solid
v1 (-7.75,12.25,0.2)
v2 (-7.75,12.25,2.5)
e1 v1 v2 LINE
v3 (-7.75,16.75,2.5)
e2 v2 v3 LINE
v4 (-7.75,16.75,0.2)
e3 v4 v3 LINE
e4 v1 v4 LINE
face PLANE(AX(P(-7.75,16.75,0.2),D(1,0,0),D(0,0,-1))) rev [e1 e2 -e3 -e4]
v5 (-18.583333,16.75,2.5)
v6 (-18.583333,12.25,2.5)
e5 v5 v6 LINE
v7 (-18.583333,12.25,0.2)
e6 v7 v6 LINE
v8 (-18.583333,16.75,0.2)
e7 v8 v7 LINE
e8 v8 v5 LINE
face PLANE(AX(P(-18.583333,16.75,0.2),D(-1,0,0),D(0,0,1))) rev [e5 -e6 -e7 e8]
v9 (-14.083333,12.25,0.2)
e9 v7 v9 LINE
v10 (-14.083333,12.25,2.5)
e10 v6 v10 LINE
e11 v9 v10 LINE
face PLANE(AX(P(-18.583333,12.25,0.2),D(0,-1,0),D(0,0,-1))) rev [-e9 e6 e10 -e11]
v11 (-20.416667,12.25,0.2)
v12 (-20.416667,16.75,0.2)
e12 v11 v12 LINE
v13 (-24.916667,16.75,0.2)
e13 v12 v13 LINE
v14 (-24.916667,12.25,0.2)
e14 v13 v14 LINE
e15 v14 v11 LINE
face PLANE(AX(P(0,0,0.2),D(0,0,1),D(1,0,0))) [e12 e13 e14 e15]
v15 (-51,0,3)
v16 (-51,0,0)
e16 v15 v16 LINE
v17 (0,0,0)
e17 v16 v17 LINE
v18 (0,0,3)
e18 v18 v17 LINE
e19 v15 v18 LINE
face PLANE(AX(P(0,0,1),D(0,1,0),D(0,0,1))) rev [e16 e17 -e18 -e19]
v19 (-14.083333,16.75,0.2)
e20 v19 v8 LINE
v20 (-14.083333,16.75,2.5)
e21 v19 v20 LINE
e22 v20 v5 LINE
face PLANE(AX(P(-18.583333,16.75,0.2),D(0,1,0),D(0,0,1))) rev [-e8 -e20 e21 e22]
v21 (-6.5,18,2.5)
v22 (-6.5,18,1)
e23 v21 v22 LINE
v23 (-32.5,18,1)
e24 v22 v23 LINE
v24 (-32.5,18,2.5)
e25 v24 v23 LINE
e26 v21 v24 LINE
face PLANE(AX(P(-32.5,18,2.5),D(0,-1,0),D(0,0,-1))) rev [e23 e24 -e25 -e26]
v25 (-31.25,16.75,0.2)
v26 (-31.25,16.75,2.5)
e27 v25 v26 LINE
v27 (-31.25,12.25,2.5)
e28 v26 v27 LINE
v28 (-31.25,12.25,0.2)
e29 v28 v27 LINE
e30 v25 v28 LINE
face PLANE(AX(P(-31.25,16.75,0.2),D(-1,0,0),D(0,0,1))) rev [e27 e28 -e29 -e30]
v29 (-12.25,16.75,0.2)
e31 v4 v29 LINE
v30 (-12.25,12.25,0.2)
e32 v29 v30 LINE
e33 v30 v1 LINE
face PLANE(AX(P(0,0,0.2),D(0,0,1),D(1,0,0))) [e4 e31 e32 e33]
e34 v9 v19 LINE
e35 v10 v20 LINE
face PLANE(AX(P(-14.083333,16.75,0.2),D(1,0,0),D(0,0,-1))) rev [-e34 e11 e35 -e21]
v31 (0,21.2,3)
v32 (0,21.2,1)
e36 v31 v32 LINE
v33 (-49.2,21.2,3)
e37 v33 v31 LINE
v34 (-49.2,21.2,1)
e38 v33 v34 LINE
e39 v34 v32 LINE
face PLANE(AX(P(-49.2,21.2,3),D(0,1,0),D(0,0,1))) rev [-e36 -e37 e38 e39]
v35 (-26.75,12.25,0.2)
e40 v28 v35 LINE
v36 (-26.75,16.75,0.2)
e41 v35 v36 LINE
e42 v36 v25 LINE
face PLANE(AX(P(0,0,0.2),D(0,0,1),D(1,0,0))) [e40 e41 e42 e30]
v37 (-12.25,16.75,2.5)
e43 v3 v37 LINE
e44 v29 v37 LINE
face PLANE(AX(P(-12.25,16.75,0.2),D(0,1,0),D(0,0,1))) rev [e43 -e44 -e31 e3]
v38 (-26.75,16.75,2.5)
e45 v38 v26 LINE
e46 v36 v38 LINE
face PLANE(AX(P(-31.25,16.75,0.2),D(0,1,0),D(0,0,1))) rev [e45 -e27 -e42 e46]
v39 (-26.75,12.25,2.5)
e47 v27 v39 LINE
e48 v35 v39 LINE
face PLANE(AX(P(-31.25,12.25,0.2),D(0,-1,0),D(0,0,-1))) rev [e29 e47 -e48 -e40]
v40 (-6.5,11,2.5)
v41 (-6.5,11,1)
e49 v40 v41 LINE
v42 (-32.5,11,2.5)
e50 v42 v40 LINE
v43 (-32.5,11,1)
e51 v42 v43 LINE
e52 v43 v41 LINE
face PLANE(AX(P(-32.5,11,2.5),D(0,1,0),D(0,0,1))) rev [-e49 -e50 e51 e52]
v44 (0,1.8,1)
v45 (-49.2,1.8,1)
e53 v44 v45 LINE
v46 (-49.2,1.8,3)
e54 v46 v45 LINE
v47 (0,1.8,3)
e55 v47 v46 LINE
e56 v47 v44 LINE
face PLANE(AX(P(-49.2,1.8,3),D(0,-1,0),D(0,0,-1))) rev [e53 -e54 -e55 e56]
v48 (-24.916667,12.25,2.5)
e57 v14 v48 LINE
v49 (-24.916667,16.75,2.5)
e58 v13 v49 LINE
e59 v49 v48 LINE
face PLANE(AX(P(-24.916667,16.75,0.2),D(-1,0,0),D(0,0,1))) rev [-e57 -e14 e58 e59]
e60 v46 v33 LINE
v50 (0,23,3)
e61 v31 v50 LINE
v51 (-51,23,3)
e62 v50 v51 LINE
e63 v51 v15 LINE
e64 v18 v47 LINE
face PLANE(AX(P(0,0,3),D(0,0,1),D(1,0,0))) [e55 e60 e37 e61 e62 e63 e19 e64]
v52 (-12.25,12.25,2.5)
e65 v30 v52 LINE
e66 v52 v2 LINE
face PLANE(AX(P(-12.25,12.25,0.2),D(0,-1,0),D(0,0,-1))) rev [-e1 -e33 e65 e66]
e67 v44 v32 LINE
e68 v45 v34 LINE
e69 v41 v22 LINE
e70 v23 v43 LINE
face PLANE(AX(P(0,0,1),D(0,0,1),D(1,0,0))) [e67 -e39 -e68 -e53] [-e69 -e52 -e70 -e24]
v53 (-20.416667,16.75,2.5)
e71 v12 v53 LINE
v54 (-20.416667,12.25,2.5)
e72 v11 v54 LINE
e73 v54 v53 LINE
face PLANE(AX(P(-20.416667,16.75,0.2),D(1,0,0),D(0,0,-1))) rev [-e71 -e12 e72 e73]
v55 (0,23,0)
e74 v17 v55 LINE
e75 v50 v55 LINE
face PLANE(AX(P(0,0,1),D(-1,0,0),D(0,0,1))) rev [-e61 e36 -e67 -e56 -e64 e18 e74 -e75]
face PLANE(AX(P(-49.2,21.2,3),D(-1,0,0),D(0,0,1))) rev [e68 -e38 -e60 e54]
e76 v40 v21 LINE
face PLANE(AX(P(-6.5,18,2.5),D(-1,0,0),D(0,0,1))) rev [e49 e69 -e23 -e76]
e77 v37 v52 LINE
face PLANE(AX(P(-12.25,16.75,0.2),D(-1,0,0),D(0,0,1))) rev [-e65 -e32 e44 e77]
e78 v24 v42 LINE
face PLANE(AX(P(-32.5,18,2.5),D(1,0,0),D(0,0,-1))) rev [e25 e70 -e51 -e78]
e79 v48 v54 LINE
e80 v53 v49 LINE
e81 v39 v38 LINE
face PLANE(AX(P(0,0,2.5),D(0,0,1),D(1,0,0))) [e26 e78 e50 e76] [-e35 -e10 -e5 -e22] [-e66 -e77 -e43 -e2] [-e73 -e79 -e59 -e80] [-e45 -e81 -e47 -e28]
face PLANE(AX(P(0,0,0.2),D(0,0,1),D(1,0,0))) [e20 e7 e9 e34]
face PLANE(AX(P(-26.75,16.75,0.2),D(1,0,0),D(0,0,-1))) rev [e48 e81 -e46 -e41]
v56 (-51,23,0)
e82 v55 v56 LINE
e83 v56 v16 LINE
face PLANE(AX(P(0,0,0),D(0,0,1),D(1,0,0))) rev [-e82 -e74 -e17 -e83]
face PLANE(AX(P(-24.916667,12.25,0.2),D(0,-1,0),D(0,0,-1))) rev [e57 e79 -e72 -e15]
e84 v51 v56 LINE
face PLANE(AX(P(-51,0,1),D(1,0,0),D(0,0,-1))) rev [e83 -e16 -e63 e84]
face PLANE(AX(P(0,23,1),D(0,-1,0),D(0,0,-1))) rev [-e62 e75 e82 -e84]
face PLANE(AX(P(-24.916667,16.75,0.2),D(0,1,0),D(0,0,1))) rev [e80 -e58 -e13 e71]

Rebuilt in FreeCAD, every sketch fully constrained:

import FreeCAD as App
import Part
import Sketcher


def add_polygon(sketch, points):
    """Adds a closed chain of lines whose ends are joined by coincident constraints."""
    first, n = sketch.GeometryCount, len(points)
    for a, b in zip(points, points[1:] + points[:1]):
        sketch.addGeometry(Part.LineSegment(App.Vector(*a, 0), App.Vector(*b, 0)), False)
    for i in range(n):
        sketch.addConstraint(Sketcher.Constraint("Coincident", first + i, 2, first + (i + 1) % n, 1))

doc = App.newDocument("Part")
params = doc.addObject("Spreadsheet::Sheet", "Params")
for row, (alias, value) in enumerate([
    ("sketch1_width", "51 mm"),
    ("sketch1_height", "23 mm"),
    ("pad1_length", "1 mm"),
    ("sketch2_width", "51 mm"),
    ("sketch2_height", "23 mm"),
    ("sketch2_width2", "49.2 mm"),
    ("sketch2_height2", "1.8 mm"),
    ("pad2_length", "2 mm"),
    ("sketch3_width", "26 mm"),
    ("sketch3_height", "7 mm"),
    ("pad3_length", "1.5 mm"),
    ("sketch4_width", "4.5 mm"),
    ("pocket1_length", "2.3 mm"),
], start=1):
    params.set(f"A{row}", alias)
    params.set(f"B{row}", "=" + value)
    params.setAlias(f"B{row}", alias)

body = doc.addObject("PartDesign::Body", "Body")

sketch1 = body.newObject("Sketcher::SketchObject", "Sketch")
sketch1.AttachmentSupport = (doc.getObject("XY_Plane"), [""])
sketch1.MapMode = "FlatFace"
add_polygon(sketch1, [(-51, 23), (-51, 0), (0, 0), (0, 23)])
sketch1.addConstraint(Sketcher.Constraint("Vertical", 0))
sketch1.addConstraint(Sketcher.Constraint("Horizontal", 1))
sketch1.addConstraint(Sketcher.Constraint("Vertical", 2))
sketch1.addConstraint(Sketcher.Constraint("Horizontal", 3))
sketch1.addConstraint(Sketcher.Constraint("Coincident", 1, 2, -1, 1))
sketch1.addConstraint(Sketcher.Constraint("DistanceX", 1, 1, 1, 2, 51.0))
sketch1.addConstraint(Sketcher.Constraint("DistanceY", 0, 2, 0, 1, 23.0))
sketch1.setExpression("Constraints[9]", "Params.sketch1_width")
sketch1.setExpression("Constraints[10]", "Params.sketch1_height")
pad1 = body.newObject("PartDesign::Pad", "Pad")
pad1.Profile = sketch1
pad1.setExpression("Length", "Params.pad1_length")

sketch2 = body.newObject("Sketcher::SketchObject", "Sketch001")
sketch2.AttachmentSupport = (doc.getObject("XY_Plane"), [""])
sketch2.MapMode = "FlatFace"
sketch2.AttachmentOffset = App.Placement(App.Vector(0, 0, 1), App.Rotation())
add_polygon(sketch2, [(0, 23), (-51, 23), (-51, 0), (0, 0), (0, 1.8), (-49.2, 1.8), (-49.2, 21.2), (0, 21.2)])
sketch2.addConstraint(Sketcher.Constraint("Horizontal", 0))
sketch2.addConstraint(Sketcher.Constraint("Vertical", 1))
sketch2.addConstraint(Sketcher.Constraint("Horizontal", 2))
sketch2.addConstraint(Sketcher.Constraint("Vertical", 3))
sketch2.addConstraint(Sketcher.Constraint("Horizontal", 4))
sketch2.addConstraint(Sketcher.Constraint("Vertical", 5))
sketch2.addConstraint(Sketcher.Constraint("Horizontal", 6))
sketch2.addConstraint(Sketcher.Constraint("Vertical", 7))
sketch2.addConstraint(Sketcher.Constraint("Coincident", 2, 2, -1, 1))
sketch2.addConstraint(Sketcher.Constraint("PointOnObject", 6, 2, -2))
sketch2.addConstraint(Sketcher.Constraint("Equal", 3, 7))
sketch2.addConstraint(Sketcher.Constraint("DistanceX", 0, 2, 0, 1, 51.0))
sketch2.addConstraint(Sketcher.Constraint("DistanceY", 1, 2, 1, 1, 23.0))
sketch2.addConstraint(Sketcher.Constraint("DistanceX", 4, 2, 4, 1, 49.2))
sketch2.addConstraint(Sketcher.Constraint("DistanceY", 3, 1, 3, 2, 1.8))
sketch2.setExpression("Constraints[19]", "Params.sketch2_width")
sketch2.setExpression("Constraints[20]", "Params.sketch2_height")
sketch2.setExpression("Constraints[21]", "Params.sketch2_width2")
sketch2.setExpression("Constraints[22]", "Params.sketch2_height2")
pad2 = body.newObject("PartDesign::Pad", "Pad001")
pad2.Profile = sketch2
pad2.setExpression("Length", "Params.pad2_length")

sketch3 = body.newObject("Sketcher::SketchObject", "Sketch002")
sketch3.AttachmentSupport = (doc.getObject("XY_Plane"), [""])
sketch3.MapMode = "FlatFace"
sketch3.AttachmentOffset = App.Placement(App.Vector(0, 0, 1), App.Rotation())
add_polygon(sketch3, [(-32, 18), (-32, 11), (-6, 11), (-6, 18)])
sketch3.addConstraint(Sketcher.Constraint("Vertical", 0))
sketch3.addConstraint(Sketcher.Constraint("Horizontal", 1))
sketch3.addConstraint(Sketcher.Constraint("Vertical", 2))
sketch3.addConstraint(Sketcher.Constraint("Horizontal", 3))
sketch3.addConstraint(Sketcher.Constraint("DistanceX", 1, 1, 1, 2, 26.0))
sketch3.addConstraint(Sketcher.Constraint("DistanceY", 0, 2, 0, 1, 7.0))
sketch3.addConstraint(Sketcher.Constraint("DistanceY", -1, 1, 0, 2, 11.0))
sketch3.addConstraint(Sketcher.Constraint("DistanceX", 0, 2, -1, 1, 32.5))
sketch3.setExpression("Constraints[8]", "Params.sketch3_width")
sketch3.setExpression("Constraints[9]", "Params.sketch3_height")
pad3 = body.newObject("PartDesign::Pad", "Pad002")
pad3.Profile = sketch3
pad3.setExpression("Length", "Params.pad3_length")

sketch4 = body.newObject("Sketcher::SketchObject", "Sketch003")
sketch4.AttachmentSupport = (doc.getObject("XY_Plane"), [""])
sketch4.MapMode = "FlatFace"
sketch4.AttachmentOffset = App.Placement(App.Vector(0, 0, 2.5), App.Rotation())
add_polygon(sketch4, [(-31.2, 16.8), (-31.2, 12.2), (-26.8, 12.2), (-26.8, 16.8)])
add_polygon(sketch4, [(-24.9, 16.8), (-24.9, 12.2), (-20.4, 12.2), (-20.4, 16.8)])
add_polygon(sketch4, [(-18.6, 16.8), (-18.6, 12.2), (-14.1, 12.2), (-14.1, 16.8)])
add_polygon(sketch4, [(-12.2, 16.8), (-12.2, 12.2), (-7.8, 12.2), (-7.8, 16.8)])
sketch4.addConstraint(Sketcher.Constraint("Vertical", 0))
sketch4.addConstraint(Sketcher.Constraint("Horizontal", 1))
sketch4.addConstraint(Sketcher.Constraint("Vertical", 2))
sketch4.addConstraint(Sketcher.Constraint("Horizontal", 3))
sketch4.addConstraint(Sketcher.Constraint("Vertical", 4))
sketch4.addConstraint(Sketcher.Constraint("Horizontal", 5))
sketch4.addConstraint(Sketcher.Constraint("Vertical", 6))
sketch4.addConstraint(Sketcher.Constraint("Horizontal", 7))
sketch4.addConstraint(Sketcher.Constraint("Vertical", 8))
sketch4.addConstraint(Sketcher.Constraint("Horizontal", 9))
sketch4.addConstraint(Sketcher.Constraint("Vertical", 10))
sketch4.addConstraint(Sketcher.Constraint("Horizontal", 11))
sketch4.addConstraint(Sketcher.Constraint("Vertical", 12))
sketch4.addConstraint(Sketcher.Constraint("Horizontal", 13))
sketch4.addConstraint(Sketcher.Constraint("Vertical", 14))
sketch4.addConstraint(Sketcher.Constraint("Horizontal", 15))
sketch4.addConstraint(Sketcher.Constraint("Horizontal", 1, 2, 4, 2))
sketch4.addConstraint(Sketcher.Constraint("Horizontal", 3, 2, 6, 2))
sketch4.addConstraint(Sketcher.Constraint("Horizontal", 5, 2, 8, 2))
sketch4.addConstraint(Sketcher.Constraint("Horizontal", 7, 2, 10, 2))
sketch4.addConstraint(Sketcher.Constraint("Horizontal", 9, 2, 12, 2))
sketch4.addConstraint(Sketcher.Constraint("Horizontal", 11, 2, 14, 2))
sketch4.addConstraint(Sketcher.Constraint("Equal", 3, 5))
sketch4.addConstraint(Sketcher.Constraint("Equal", 7, 9))
sketch4.addConstraint(Sketcher.Constraint("Equal", 11, 13))
sketch4.addConstraint(Sketcher.Constraint("Equal", 15, 0))
sketch4.addConstraint(Sketcher.Constraint("DistanceX", 1, 1, 1, 2, 4.5))
sketch4.addConstraint(Sketcher.Constraint("DistanceX", 0, 2, -1, 1, 31.25))
sketch4.addConstraint(Sketcher.Constraint("DistanceY", -1, 1, 0, 2, 12.25))
sketch4.addConstraint(Sketcher.Constraint("DistanceX", 12, 2, -1, 1, 12.25))
sketch4.addConstraint(Sketcher.Constraint("DistanceX", 4, 2, -1, 1, 24.916667))
sketch4.addConstraint(Sketcher.Constraint("DistanceX", 8, 2, -1, 1, 18.583333))
sketch4.setExpression("Constraints[42]", "Params.sketch4_width")
pocket1 = body.newObject("PartDesign::Pocket", "Pocket")
pocket1.Profile = sketch4
pocket1.setExpression("Length", "Params.pocket1_length")

doc.recompute()
